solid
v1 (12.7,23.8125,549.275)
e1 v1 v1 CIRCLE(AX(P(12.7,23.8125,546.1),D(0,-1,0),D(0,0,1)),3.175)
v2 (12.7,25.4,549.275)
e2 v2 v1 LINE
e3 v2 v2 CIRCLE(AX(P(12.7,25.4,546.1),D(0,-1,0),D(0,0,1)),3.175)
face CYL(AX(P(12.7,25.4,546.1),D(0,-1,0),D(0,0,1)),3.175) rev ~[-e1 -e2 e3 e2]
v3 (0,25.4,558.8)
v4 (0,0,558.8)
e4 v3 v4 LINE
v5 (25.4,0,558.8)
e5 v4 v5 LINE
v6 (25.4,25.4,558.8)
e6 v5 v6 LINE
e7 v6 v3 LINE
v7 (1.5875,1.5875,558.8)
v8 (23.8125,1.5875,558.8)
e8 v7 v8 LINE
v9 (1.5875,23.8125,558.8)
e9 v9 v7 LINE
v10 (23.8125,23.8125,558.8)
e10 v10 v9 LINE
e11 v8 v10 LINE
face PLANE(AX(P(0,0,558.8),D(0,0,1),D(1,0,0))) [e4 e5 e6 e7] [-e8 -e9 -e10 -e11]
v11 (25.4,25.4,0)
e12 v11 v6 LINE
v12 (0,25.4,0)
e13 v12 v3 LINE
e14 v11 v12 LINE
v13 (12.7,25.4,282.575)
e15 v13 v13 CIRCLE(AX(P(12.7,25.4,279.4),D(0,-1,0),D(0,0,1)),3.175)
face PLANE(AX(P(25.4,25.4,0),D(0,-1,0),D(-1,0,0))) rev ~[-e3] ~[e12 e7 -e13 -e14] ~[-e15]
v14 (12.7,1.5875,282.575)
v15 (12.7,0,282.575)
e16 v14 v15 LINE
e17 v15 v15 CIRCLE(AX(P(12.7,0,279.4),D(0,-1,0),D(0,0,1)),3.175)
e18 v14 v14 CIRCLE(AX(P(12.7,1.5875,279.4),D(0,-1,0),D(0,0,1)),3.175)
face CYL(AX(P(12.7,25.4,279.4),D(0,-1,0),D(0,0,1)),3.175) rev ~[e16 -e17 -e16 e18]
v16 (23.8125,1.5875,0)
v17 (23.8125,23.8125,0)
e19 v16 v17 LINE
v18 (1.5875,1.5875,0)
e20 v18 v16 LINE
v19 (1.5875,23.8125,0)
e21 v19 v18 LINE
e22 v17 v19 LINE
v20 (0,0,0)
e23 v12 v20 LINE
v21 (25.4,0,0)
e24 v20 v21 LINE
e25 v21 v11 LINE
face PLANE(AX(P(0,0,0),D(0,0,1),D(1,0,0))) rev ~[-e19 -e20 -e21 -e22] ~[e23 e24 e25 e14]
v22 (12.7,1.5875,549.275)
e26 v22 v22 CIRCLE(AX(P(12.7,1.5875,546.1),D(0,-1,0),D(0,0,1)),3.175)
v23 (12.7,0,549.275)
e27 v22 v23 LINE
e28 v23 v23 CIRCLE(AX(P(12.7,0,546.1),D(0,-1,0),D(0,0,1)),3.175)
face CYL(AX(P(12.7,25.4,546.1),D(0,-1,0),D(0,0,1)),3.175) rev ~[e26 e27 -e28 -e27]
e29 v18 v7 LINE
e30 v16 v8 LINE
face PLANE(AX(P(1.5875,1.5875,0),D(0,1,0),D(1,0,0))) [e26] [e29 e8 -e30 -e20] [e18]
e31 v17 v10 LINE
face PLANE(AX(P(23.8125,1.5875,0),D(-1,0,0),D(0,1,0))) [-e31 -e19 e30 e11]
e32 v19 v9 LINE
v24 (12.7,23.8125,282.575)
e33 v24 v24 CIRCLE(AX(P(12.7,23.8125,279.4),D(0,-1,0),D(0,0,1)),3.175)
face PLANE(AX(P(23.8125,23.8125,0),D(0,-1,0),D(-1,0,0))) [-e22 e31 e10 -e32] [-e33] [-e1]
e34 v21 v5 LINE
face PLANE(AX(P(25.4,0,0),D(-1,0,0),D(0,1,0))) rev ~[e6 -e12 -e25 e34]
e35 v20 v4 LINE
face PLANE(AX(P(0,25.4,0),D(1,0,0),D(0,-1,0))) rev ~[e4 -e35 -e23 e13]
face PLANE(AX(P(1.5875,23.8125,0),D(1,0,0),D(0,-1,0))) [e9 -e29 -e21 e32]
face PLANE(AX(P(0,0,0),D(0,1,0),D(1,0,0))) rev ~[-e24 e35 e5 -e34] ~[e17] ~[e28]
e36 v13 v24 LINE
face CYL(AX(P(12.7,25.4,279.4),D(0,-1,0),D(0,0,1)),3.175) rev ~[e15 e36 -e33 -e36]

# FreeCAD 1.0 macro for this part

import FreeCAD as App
import Part
import Sketcher
Q = App.Units.Quantity


def add_polygon(sketch, points):
    """Adds a closed chain of lines whose ends are joined by coincident constraints."""
    first, n = sketch.GeometryCount, len(points)
    for a, b in zip(points, points[1:] + points[:1]):
        sketch.addGeometry(Part.LineSegment(App.Vector(*a, 0), App.Vector(*b, 0)), False)
    for i in range(n):
        sketch.addConstraint(Sketcher.Constraint("Coincident", first + i, 2, first + (i + 1) % n, 1))

doc = App.newDocument("Part")
body = doc.addObject("PartDesign::Body", "Body")

# Sketch on XY plane
sketch1 = body.newObject("Sketcher::SketchObject", "Sketch")
sketch1.AttachmentSupport = (doc.getObject("XY_Plane"), [""])
sketch1.MapMode = "FlatFace"
add_polygon(sketch1, [(0, 25.4), (0, 0), (25.4, 0), (25.4, 25.4)])  # lines 0-3
add_polygon(sketch1, [(23.8125, 1.5875), (1.5875, 1.5875), (1.5875, 23.8125), (23.8125, 23.8125)])  # lines 4-7
sketch1.addConstraint([
    Sketcher.Constraint("Vertical", 0),
    Sketcher.Constraint("Horizontal", 1),
    Sketcher.Constraint("Vertical", 2),
    Sketcher.Constraint("Horizontal", 3),
    Sketcher.Constraint("Horizontal", 4),
    Sketcher.Constraint("Vertical", 5),
    Sketcher.Constraint("Horizontal", 6),
    Sketcher.Constraint("Vertical", 7),
    Sketcher.Constraint("Coincident", 0, 2, -1, 1),
    Sketcher.Constraint("Equal", 3, 0),
    Sketcher.Constraint("Equal", 6, 5),
    Sketcher.Constraint("DistanceX", 1, 1, 1, 2, Q("1 in")),
    Sketcher.Constraint("DistanceX", -1, 1, 4, 2, Q("0.0625 in")),
    Sketcher.Constraint("DistanceY", -1, 1, 4, 2, Q("0.0625 in")),
    Sketcher.Constraint("DistanceY", 5, 2, 3, 2, Q("0.0625 in")),
])
pad1 = body.newObject("PartDesign::Pad", "Pad")
pad1.Profile = sketch1
pad1.Length = Q("22 in")

# Sketch on XZ plane
sketch2 = body.newObject("Sketcher::SketchObject", "Sketch001")
sketch2.AttachmentSupport = (doc.getObject("XZ_Plane"), [""])
sketch2.MapMode = "FlatFace"
sketch2.AttachmentOffset = App.Placement(App.Vector(0, 0, -1 * 25.4), App.Rotation())
sketch2.addGeometry(Part.Circle(App.Vector(12.7, 279.4, 0), App.Vector(0, 0, 1), 3.175), False)
sketch2.addConstraint([
    Sketcher.Constraint("Diameter", 0, Q("0.25 in")),
    Sketcher.Constraint("DistanceY", -1, 1, 0, 3, Q("11 in")),
    Sketcher.Constraint("DistanceX", -1, 1, 0, 3, Q("0.5 in")),
])
doc.recompute()
hole = body.newObject("PartDesign::Hole", "Hole")
hole.Profile = sketch2
hole.ThreadType = "None"
hole.Diameter = Q("0.25 in")
hole.DepthType = "ThroughAll"
hole.Reversed = True

# Sketch on XZ plane
sketch3 = body.newObject("Sketcher::SketchObject", "Sketch002")
sketch3.AttachmentSupport = (doc.getObject("XZ_Plane"), [""])
sketch3.MapMode = "FlatFace"
sketch3.AttachmentOffset = App.Placement(App.Vector(0, 0, -1 * 25.4), App.Rotation())
sketch3.addGeometry(Part.Circle(App.Vector(12.7, 546.1, 0), App.Vector(0, 0, 1), 3.175), False)
sketch3.addConstraint([
    Sketcher.Constraint("Diameter", 0, Q("0.25 in")),
    Sketcher.Constraint("DistanceX", -1, 1, 0, 3, Q("0.5 in")),
    Sketcher.Constraint("DistanceY", -1, 1, 0, 3, Q("21.5 in")),
])
doc.recompute()
hole2 = body.newObject("PartDesign::Hole", "Hole001")
hole2.Profile = sketch3
hole2.ThreadType = "None"
hole2.Diameter = Q("0.25 in")
hole2.DepthType = "ThroughAll"
hole2.Reversed = True

doc.recompute()
